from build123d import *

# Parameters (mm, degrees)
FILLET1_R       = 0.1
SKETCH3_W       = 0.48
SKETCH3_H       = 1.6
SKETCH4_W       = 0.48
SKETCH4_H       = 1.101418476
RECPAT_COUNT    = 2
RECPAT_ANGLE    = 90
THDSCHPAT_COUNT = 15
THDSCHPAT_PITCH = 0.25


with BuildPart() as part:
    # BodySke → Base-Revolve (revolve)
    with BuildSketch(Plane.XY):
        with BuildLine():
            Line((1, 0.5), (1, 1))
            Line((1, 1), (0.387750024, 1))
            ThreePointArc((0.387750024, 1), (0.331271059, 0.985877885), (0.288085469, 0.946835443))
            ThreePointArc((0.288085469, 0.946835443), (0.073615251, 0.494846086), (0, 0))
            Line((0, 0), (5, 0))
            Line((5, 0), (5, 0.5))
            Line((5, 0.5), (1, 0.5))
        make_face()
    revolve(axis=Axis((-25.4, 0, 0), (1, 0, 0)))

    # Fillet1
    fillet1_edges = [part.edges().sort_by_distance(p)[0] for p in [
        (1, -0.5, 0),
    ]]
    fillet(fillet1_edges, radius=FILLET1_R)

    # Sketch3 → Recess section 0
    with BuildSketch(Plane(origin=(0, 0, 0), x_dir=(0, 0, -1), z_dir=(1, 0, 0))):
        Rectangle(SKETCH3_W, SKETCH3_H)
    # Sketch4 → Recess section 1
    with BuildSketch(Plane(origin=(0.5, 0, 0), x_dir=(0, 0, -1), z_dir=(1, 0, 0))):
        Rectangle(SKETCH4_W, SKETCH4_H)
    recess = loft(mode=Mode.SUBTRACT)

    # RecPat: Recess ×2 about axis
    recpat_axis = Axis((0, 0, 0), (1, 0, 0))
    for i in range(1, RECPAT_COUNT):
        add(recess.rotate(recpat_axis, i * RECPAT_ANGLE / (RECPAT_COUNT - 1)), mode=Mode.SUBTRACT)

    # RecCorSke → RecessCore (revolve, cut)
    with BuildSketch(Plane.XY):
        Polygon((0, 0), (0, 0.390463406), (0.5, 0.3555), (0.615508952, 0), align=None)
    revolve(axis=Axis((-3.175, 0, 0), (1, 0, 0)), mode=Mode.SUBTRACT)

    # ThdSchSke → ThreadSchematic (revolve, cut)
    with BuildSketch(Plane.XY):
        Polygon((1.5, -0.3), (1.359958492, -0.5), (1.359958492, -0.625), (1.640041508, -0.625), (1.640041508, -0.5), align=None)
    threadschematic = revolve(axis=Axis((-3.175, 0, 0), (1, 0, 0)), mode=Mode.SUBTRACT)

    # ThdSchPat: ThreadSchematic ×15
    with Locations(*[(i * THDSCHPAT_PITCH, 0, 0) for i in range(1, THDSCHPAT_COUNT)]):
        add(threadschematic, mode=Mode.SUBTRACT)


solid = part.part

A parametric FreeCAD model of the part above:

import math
import FreeCAD as App
import Part
import Sketcher

V = App.Vector
Q = App.Units.Quantity


def edges_at(feature, points):
    """Names of the edges that pass closest to the given points."""
    edges = feature.Shape.Edges
    near = lambda p: min(range(len(edges)), key=lambda i: edges[i].distToShape(Part.Vertex(*p))[0])
    return sorted({f"Edge{near(p) + 1}" for p in points})

doc = App.newDocument("Part")
body = doc.addObject("PartDesign::Body", "Body")

# Sketch on XY plane
sketch1 = body.newObject("Sketcher::SketchObject", "Sketch")
sketch1.AttachmentSupport = (doc.getObject("XY_Plane"), [""])
sketch1.MapMode = "FlatFace"
sketch1.addGeometry([
    Part.LineSegment(V(1, 0.5, 0), V(1, 1, 0)),  # 0
    Part.LineSegment(V(1, 1, 0), V(0.39, 1, 0)),  # 1
    Part.ArcOfCircle(Part.Circle(V(0.39, 0.88, 0), V(0, 0, 1), 0.12), math.radians(90), math.radians(146)),  # 2
    Part.ArcOfCircle(Part.Circle(V(1.7, 0, 0), V(0, 0, 1), 1.7), math.radians(146), math.radians(180)),  # 3
    Part.LineSegment(V(0, 0, 0), V(5, 0, 0)),  # 4
    Part.LineSegment(V(5, 0, 0), V(5, 0.5, 0)),  # 5
    Part.LineSegment(V(5, 0.5, 0), V(1, 0.5, 0)),  # 6
], False)
sketch1.addConstraint([
    Sketcher.Constraint("Coincident", 0, 2, 1, 1),
    Sketcher.Constraint("Tangent", 1, 2, 2, 1),
    Sketcher.Constraint("Tangent", 2, 2, 3, 1),
    Sketcher.Constraint("Coincident", 3, 2, 4, 1),
    Sketcher.Constraint("Coincident", 4, 2, 5, 1),
    Sketcher.Constraint("Coincident", 5, 2, 6, 1),
    Sketcher.Constraint("Coincident", 6, 2, 0, 1),
    Sketcher.Constraint("Vertical", 0),
    Sketcher.Constraint("Horizontal", 1),
    Sketcher.Constraint("Horizontal", 4),
    Sketcher.Constraint("Vertical", 5),
    Sketcher.Constraint("Horizontal", 6),
    Sketcher.Constraint("Coincident", 3, 2, -1, 1),
    Sketcher.Constraint("PointOnObject", 3, 3, -1),
    Sketcher.Constraint("Equal", 0, 5),
    Sketcher.Constraint("Radius", 3, Q("1.7 mm")),
    Sketcher.Constraint("DistanceX", 4, 1, 4, 2, Q("5 mm")),
    Sketcher.Constraint("DistanceX", 6, 2, 6, 1, Q("4 mm")),
    Sketcher.Constraint("Radius", 2, Q("0.12 mm")),
    Sketcher.Constraint("DistanceY", 0, 1, 0, 2, Q("0.5 mm")),
])
revolution = body.newObject("PartDesign::Revolution", "Revolution")
revolution.Profile = sketch1
revolution.ReferenceAxis = (sketch1, ["H_Axis"])
revolution.Angle = 360
doc.recompute()

fillet = body.newObject("PartDesign::Fillet", "Fillet")
fillet.Base = (revolution, edges_at(revolution, [(1, -0.5, 0)]))
fillet.Radius = 0.1

# Sketch on YZ plane
sketch2 = body.newObject("Sketcher::SketchObject", "Sketch001")
sketch2.AttachmentSupport = (doc.getObject("YZ_Plane"), [""])
sketch2.MapMode = "FlatFace"
sketch2.addGeometry([
    Part.LineSegment(V(0.8, 0.24, 0), V(-0.8, 0.24, 0)),
    Part.LineSegment(V(-0.8, 0.24, 0), V(-0.8, -0.24, 0)),
    Part.LineSegment(V(-0.8, -0.24, 0), V(0.8, -0.24, 0)),
    Part.LineSegment(V(0.8, -0.24, 0), V(0.8, 0.24, 0)),
], False)
sketch2.addConstraint([
    Sketcher.Constraint("Coincident", 0, 2, 1, 1),
    Sketcher.Constraint("Coincident", 1, 2, 2, 1),
    Sketcher.Constraint("Coincident", 2, 2, 3, 1),
    Sketcher.Constraint("Coincident", 3, 2, 0, 1),
    Sketcher.Constraint("Horizontal", 0),
    Sketcher.Constraint("Vertical", 1),
    Sketcher.Constraint("Horizontal", 2),
    Sketcher.Constraint("Vertical", 3),
    Sketcher.Constraint("Symmetric", 0, 2, 2, 2, -1, 1),
    Sketcher.Constraint("DistanceX", 0, 2, 0, 1, Q("1.6 mm")),
    Sketcher.Constraint("DistanceY", 1, 2, 1, 1, Q("0.48 mm")),
])

# Sketch on YZ plane
sketch3 = body.newObject("Sketcher::SketchObject", "Sketch002")
sketch3.AttachmentSupport = (doc.getObject("YZ_Plane"), [""])
sketch3.MapMode = "FlatFace"
sketch3.AttachmentOffset = App.Placement(V(0, 0, 0.5), App.Rotation())
sketch3.addGeometry([
    Part.LineSegment(V(0.55, 0.24, 0), V(-0.55, 0.24, 0)),
    Part.LineSegment(V(-0.55, 0.24, 0), V(-0.55, -0.24, 0)),
    Part.LineSegment(V(-0.55, -0.24, 0), V(0.55, -0.24, 0)),
    Part.LineSegment(V(0.55, -0.24, 0), V(0.55, 0.24, 0)),
], False)
sketch3.addConstraint([
    Sketcher.Constraint("Coincident", 0, 2, 1, 1),
    Sketcher.Constraint("Coincident", 1, 2, 2, 1),
    Sketcher.Constraint("Coincident", 2, 2, 3, 1),
    Sketcher.Constraint("Coincident", 3, 2, 0, 1),
    Sketcher.Constraint("Horizontal", 0),
    Sketcher.Constraint("Vertical", 1),
    Sketcher.Constraint("Horizontal", 2),
    Sketcher.Constraint("Vertical", 3),
    Sketcher.Constraint("Symmetric", 0, 2, 2, 2, -1, 1),
    Sketcher.Constraint("DistanceY", 1, 2, 1, 1, Q("0.48 mm")),
    Sketcher.Constraint("DistanceX", 0, 2, 0, 1, Q("1.101418 mm")),
])

subtractiveloft = body.newObject("PartDesign::SubtractiveLoft", "SubtractiveLoft")
subtractiveloft.Profile = sketch2
subtractiveloft.Sections = [sketch3]
doc.recompute()

polarpattern = body.newObject("PartDesign::PolarPattern", "PolarPattern")
polarpattern.Originals = [subtractiveloft]
polarpattern.Axis = (doc.getObject("X_Axis"), [""])
polarpattern.Angle = 90
polarpattern.Occurrences = 2
body.Tip = polarpattern

# Sketch on XY plane
sketch4 = body.newObject("Sketcher::SketchObject", "Sketch003")
sketch4.AttachmentSupport = (doc.getObject("XY_Plane"), [""])
sketch4.MapMode = "FlatFace"
sketch4.addGeometry([
    Part.LineSegment(V(0, 0.39, 0), V(0, 0, 0)),
    Part.LineSegment(V(0, 0, 0), V(0.62, 0, 0)),
    Part.LineSegment(V(0.62, 0, 0), V(0.5, 0.36, 0)),
    Part.LineSegment(V(0.5, 0.36, 0), V(0, 0.39, 0)),
], False)
sketch4.addConstraint([
    Sketcher.Constraint("Coincident", 0, 2, 1, 1),
    Sketcher.Constraint("Coincident", 1, 2, 2, 1),
    Sketcher.Constraint("Coincident", 2, 2, 3, 1),
    Sketcher.Constraint("Coincident", 3, 2, 0, 1),
    Sketcher.Constraint("Vertical", 0),
    Sketcher.Constraint("Horizontal", 1),
    Sketcher.Constraint("Coincident", 0, 2, -1, 1),
    Sketcher.Constraint("Angle", 2, Q("108 deg")),
    Sketcher.Constraint("Angle", 3, Q("176 deg")),
    Sketcher.Constraint("DistanceX", -1, 1, 2, 2, Q("0.5 mm")),
    Sketcher.Constraint("DistanceX", 1, 1, 1, 2, Q("0.615509 mm")),
])
groove = body.newObject("PartDesign::Groove", "Groove")
groove.Profile = sketch4
groove.ReferenceAxis = (sketch4, ["H_Axis"])
groove.Angle = 360

# Sketch on XY plane
sketch5 = body.newObject("Sketcher::SketchObject", "Sketch004")
sketch5.AttachmentSupport = (doc.getObject("XY_Plane"), [""])
sketch5.MapMode = "FlatFace"
sketch5.addGeometry([
    Part.LineSegment(V(1.5, -0.3, 0), V(1.36, -0.5, 0)),  # 0
    Part.LineSegment(V(1.36, -0.5, 0), V(1.36, -0.62, 0)),  # 1
    Part.LineSegment(V(1.36, -0.62, 0), V(1.64, -0.62, 0)),  # 2
    Part.LineSegment(V(1.64, -0.62, 0), V(1.64, -0.5, 0)),  # 3
    Part.LineSegment(V(1.64, -0.5, 0), V(1.5, -0.3, 0)),  # 4
], False)
sketch5.addConstraint([
    Sketcher.Constraint("Coincident", 0, 2, 1, 1),
    Sketcher.Constraint("Coincident", 1, 2, 2, 1),
    Sketcher.Constraint("Coincident", 2, 2, 3, 1),
    Sketcher.Constraint("Coincident", 3, 2, 4, 1),
    Sketcher.Constraint("Coincident", 4, 2, 0, 1),
    Sketcher.Constraint("Vertical", 1),
    Sketcher.Constraint("Horizontal", 2),
    Sketcher.Constraint("Vertical", 3),
    Sketcher.Constraint("Horizontal", 0, 2, 3, 2),
    Sketcher.Constraint("Equal", 0, 4),
    Sketcher.Constraint("Angle", 0, Q("-125 deg")),
    Sketcher.Constraint("DistanceY", 0, 2, -1, 1, Q("0.5 mm")),
    Sketcher.Constraint("DistanceX", -1, 1, 4, 2, Q("1.5 mm")),
    Sketcher.Constraint("DistanceY", 4, 2, -1, 1, Q("0.3 mm")),
    Sketcher.Constraint("DistanceY", 1, 2, 1, 1, Q("0.125 mm")),
])
groove2 = body.newObject("PartDesign::Groove", "Groove001")
groove2.Profile = sketch5
groove2.ReferenceAxis = (sketch5, ["H_Axis"])
groove2.Angle = 360
doc.recompute()

linearpattern = body.newObject("PartDesign::LinearPattern", "LinearPattern")
linearpattern.Originals = [groove2]
linearpattern.Direction = (doc.getObject("X_Axis"), [""])
linearpattern.Mode = "offset"
linearpattern.Offset = 0.25
linearpattern.Occurrences = 15
body.Tip = linearpattern

doc.recompute()
